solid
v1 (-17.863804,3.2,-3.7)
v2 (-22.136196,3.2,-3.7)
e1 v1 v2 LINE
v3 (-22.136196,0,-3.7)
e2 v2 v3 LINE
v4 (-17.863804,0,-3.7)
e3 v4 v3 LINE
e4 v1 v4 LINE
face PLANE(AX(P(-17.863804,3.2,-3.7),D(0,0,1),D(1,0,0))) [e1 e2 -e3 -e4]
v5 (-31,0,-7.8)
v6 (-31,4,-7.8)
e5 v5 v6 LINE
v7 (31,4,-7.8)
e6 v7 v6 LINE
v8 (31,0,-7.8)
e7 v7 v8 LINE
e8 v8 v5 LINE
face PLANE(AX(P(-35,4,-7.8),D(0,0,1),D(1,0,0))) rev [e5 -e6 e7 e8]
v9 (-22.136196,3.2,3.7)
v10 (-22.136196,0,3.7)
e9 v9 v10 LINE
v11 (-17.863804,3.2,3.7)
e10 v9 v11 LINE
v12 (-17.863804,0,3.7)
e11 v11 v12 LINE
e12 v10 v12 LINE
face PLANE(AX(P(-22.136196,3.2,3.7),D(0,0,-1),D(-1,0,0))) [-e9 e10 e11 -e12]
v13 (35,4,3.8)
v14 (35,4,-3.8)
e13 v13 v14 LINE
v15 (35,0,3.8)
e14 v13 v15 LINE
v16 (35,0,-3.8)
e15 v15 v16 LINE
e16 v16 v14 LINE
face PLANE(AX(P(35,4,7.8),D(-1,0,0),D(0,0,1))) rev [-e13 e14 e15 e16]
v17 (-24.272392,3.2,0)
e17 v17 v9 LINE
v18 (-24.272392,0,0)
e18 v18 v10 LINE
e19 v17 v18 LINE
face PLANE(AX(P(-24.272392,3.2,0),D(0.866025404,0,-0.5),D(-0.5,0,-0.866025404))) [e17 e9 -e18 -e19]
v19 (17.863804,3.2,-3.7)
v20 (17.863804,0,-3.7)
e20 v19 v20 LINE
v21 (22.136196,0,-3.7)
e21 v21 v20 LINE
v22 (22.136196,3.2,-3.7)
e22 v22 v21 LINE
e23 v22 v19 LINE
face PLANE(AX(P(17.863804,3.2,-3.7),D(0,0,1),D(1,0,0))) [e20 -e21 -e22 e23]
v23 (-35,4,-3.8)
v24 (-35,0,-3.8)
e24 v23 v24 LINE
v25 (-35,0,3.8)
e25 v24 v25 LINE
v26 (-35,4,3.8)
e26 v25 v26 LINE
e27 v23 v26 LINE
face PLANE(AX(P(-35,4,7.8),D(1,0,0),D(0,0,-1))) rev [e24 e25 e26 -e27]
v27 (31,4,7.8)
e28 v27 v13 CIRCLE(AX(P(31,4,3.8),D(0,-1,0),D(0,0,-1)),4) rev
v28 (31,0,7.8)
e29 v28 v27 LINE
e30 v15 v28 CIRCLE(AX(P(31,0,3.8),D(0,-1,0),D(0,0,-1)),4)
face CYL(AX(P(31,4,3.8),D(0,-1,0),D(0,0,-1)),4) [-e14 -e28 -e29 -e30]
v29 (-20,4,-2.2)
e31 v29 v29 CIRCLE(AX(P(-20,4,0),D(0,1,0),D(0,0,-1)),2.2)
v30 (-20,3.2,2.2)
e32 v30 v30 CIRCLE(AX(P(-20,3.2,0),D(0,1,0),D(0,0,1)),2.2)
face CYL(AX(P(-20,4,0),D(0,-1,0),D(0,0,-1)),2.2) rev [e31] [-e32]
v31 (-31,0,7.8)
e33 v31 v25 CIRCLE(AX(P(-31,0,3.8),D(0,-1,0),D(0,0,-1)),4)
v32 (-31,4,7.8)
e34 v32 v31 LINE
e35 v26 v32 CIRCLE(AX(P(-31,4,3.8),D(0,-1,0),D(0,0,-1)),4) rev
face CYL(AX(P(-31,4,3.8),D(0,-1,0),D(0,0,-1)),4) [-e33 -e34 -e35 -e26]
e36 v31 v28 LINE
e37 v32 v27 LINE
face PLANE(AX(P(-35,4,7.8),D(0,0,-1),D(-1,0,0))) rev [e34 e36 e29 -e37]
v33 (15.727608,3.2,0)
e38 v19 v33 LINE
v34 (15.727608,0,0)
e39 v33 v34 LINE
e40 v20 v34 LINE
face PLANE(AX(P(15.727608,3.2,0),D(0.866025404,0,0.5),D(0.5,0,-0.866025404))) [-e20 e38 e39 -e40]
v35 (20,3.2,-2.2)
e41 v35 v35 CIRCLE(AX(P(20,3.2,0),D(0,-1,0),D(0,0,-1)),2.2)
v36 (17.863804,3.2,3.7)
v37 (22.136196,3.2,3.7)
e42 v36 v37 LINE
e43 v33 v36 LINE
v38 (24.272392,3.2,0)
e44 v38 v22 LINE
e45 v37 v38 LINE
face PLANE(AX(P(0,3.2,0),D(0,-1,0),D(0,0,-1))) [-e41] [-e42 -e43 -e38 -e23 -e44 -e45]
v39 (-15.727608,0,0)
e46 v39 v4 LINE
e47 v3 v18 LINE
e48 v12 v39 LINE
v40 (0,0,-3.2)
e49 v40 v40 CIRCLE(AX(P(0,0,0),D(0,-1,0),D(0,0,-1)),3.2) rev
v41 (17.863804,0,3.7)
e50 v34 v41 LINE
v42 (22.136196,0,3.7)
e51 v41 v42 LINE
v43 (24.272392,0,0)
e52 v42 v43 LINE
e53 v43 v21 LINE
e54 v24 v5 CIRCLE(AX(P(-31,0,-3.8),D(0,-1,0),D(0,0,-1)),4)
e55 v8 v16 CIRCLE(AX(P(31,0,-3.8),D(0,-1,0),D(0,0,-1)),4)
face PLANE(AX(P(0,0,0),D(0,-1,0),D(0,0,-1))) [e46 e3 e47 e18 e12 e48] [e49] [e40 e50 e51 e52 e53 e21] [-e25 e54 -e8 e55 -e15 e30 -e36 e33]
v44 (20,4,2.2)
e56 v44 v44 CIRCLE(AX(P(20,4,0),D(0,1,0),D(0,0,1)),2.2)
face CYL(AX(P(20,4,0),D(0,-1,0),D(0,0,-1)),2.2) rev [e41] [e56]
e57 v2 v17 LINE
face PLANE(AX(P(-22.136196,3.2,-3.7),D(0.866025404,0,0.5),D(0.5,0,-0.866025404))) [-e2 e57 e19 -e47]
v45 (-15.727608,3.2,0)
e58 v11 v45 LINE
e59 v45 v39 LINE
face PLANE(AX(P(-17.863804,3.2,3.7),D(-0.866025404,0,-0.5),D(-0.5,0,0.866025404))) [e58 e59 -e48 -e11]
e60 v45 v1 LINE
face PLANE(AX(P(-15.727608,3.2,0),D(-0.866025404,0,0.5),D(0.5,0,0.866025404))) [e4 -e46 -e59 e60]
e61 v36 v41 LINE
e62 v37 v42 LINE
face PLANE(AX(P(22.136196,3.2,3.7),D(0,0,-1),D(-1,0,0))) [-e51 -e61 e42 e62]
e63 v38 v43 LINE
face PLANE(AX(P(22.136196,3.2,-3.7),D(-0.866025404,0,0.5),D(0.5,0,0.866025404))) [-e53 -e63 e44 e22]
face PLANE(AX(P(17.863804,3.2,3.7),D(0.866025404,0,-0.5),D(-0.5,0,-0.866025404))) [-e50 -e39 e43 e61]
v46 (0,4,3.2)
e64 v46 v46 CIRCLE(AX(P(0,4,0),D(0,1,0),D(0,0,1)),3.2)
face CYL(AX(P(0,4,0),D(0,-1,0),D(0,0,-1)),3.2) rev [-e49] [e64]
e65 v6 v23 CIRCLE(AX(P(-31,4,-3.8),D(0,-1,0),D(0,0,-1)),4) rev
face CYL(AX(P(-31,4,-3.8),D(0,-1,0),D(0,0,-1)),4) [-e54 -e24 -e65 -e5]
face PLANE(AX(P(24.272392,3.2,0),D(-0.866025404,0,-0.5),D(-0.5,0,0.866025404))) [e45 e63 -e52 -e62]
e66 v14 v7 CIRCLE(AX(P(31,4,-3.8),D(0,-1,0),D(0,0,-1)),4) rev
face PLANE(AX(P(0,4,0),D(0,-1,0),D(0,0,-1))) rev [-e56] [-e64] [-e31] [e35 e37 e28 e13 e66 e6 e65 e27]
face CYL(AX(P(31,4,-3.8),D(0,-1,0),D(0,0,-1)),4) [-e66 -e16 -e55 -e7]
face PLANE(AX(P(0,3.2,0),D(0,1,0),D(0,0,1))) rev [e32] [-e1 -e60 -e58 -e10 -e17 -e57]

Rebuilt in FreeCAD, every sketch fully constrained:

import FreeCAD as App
import Part
import Sketcher
from FreeCAD import Vector
Q = App.Units.Quantity


def edges_at(feature, points):
    """Names of the edges that pass closest to the given points."""
    edges = feature.Shape.Edges
    near = lambda p: min(range(len(edges)), key=lambda i: edges[i].distToShape(Part.Vertex(*p))[0])
    return sorted({f"Edge{near(p) + 1}" for p in points})


def add_polygon(sketch, points):
    """Adds a closed chain of lines whose ends are joined by coincident constraints."""
    first, n = sketch.GeometryCount, len(points)
    for a, b in zip(points, points[1:] + points[:1]):
        sketch.addGeometry(Part.LineSegment(App.Vector(*a, 0), App.Vector(*b, 0)), False)
    for i in range(n):
        sketch.addConstraint(Sketcher.Constraint("Coincident", first + i, 2, first + (i + 1) % n, 1))

doc = App.newDocument("Part")
body = doc.addObject("PartDesign::Body", "Body")

# Sketch on XZ plane
sketch1 = body.newObject("Sketcher::SketchObject", "Sketch")
sketch1.AttachmentSupport = (doc.getObject("XZ_Plane"), [""])
sketch1.MapMode = "FlatFace"
add_polygon(sketch1, [(-35, -8), (-35, 8), (35, 8), (35, -8)])  # lines 0-3
sketch1.addConstraint(Sketcher.Constraint("Vertical", 0))
sketch1.addConstraint(Sketcher.Constraint("Horizontal", 1))
sketch1.addConstraint(Sketcher.Constraint("Vertical", 2))
sketch1.addConstraint(Sketcher.Constraint("Horizontal", 3))
sketch1.addConstraint(Sketcher.Constraint("Symmetric", 0, 2, 2, 2, -1, 1))
sketch1.addConstraint(Sketcher.Constraint("DistanceX", 1, 1, 1, 2, Q("70 mm")))
sketch1.addConstraint(Sketcher.Constraint("DistanceY", 0, 1, 0, 2, Q("15.6 mm")))
pad1 = body.newObject("PartDesign::Pad", "Pad")
pad1.Profile = sketch1
pad1.Length = 4
pad1.Reversed = True

# Sketch on XZ plane
sketch2 = body.newObject("Sketcher::SketchObject", "Sketch001")
sketch2.AttachmentSupport = (doc.getObject("XZ_Plane"), [""])
sketch2.MapMode = "FlatFace"
sketch2.addGeometry(Part.Circle(Vector(0, 0, 0), Vector(0, 0, 1), 3.2), False)
sketch2.addGeometry(Part.Circle(Vector(20, 0, 0), Vector(0, 0, 1), 2.2), False)
sketch2.addGeometry(Part.Circle(Vector(-20, 0, 0), Vector(0, 0, 1), 2.2), False)
sketch2.addConstraint(Sketcher.Constraint("Coincident", 0, 3, -1, 1))
sketch2.addConstraint(Sketcher.Constraint("Equal", 1, 2))
sketch2.addConstraint(Sketcher.Constraint("Symmetric", 1, 3, 2, 3, -1, 1))
sketch2.addConstraint(Sketcher.Constraint("PointOnObject", 1, 3, -1))
sketch2.addConstraint(Sketcher.Constraint("Diameter", 0, Q("6.4 mm")))
sketch2.addConstraint(Sketcher.Constraint("Diameter", 1, Q("4.4 mm")))
sketch2.addConstraint(Sketcher.Constraint("DistanceX", -1, 1, 1, 3, Q("20 mm")))
pocket1 = body.newObject("PartDesign::Pocket", "Pocket")
pocket1.Profile = sketch2
pocket1.Type = "ThroughAll"
pocket1.Midplane = True
doc.recompute()

fillet = body.newObject("PartDesign::Fillet", "Fillet")
fillet.Base = (pocket1, edges_at(pocket1, [
    (35, 2, 7.8),
    (-35, 2, 7.8),
    (-35, 2, -7.8),
    (35, 2, -7.8),
]))
fillet.Radius = 4

# Sketch on XZ plane
sketch3 = body.newObject("Sketcher::SketchObject", "Sketch002")
sketch3.AttachmentSupport = (doc.getObject("XZ_Plane"), [""])
sketch3.MapMode = "FlatFace"
add_polygon(sketch3, [(-15.7, 0), (-17.9, -3.7), (-22.1, -3.7), (-24.3, 0), (-22.1, 3.7), (-17.9, 3.7)])  # lines 0-5
add_polygon(sketch3, [(15.7, 0), (17.9, 3.7), (22.1, 3.7), (24.3, 0), (22.1, -3.7), (17.9, -3.7)])  # lines 6-11
sketch3.addConstraint(Sketcher.Constraint("Horizontal", 1))
sketch3.addConstraint(Sketcher.Constraint("Horizontal", 4))
sketch3.addConstraint(Sketcher.Constraint("Horizontal", 7))
sketch3.addConstraint(Sketcher.Constraint("Horizontal", 10))
sketch3.addConstraint(Sketcher.Constraint("Symmetric", 0, 2, 6, 2, -1, 1))
sketch3.addConstraint(Sketcher.Constraint("Symmetric", 2, 2, 8, 2, -1, 1))
sketch3.addConstraint(Sketcher.Constraint("Symmetric", 3, 2, 9, 2, -1, 1))
sketch3.addConstraint(Sketcher.Constraint("Symmetric", 5, 2, 11, 2, -1, 1))
sketch3.addConstraint(Sketcher.Constraint("Symmetric", 4, 2, 6, 2, -2))
sketch3.addConstraint(Sketcher.Constraint("PointOnObject", 2, 2, -1))
sketch3.addConstraint(Sketcher.Constraint("PointOnObject", 5, 2, -1))
sketch3.addConstraint(Sketcher.Constraint("Parallel", 0, 3))
sketch3.addConstraint(Sketcher.Constraint("Parallel", 2, 5))
sketch3.addConstraint(Sketcher.Constraint("Parallel", 5, 8))
sketch3.addConstraint(Sketcher.Constraint("Parallel", 8, 11))
sketch3.addConstraint(Sketcher.Constraint("Angle", 0, Q("-120 deg")))
sketch3.addConstraint(Sketcher.Constraint("DistanceX", 3, 2, 6, 2, Q("40 mm")))
sketch3.addConstraint(Sketcher.Constraint("DistanceY", 0, 2, -1, 1, Q("3.7 mm")))
sketch3.addConstraint(Sketcher.Constraint("DistanceX", 1, 2, 1, 1, Q("4.272392 mm")))
pocket2 = body.newObject("PartDesign::Pocket", "Pocket001")
pocket2.Profile = sketch3
pocket2.Length = 3.2

doc.recompute()
